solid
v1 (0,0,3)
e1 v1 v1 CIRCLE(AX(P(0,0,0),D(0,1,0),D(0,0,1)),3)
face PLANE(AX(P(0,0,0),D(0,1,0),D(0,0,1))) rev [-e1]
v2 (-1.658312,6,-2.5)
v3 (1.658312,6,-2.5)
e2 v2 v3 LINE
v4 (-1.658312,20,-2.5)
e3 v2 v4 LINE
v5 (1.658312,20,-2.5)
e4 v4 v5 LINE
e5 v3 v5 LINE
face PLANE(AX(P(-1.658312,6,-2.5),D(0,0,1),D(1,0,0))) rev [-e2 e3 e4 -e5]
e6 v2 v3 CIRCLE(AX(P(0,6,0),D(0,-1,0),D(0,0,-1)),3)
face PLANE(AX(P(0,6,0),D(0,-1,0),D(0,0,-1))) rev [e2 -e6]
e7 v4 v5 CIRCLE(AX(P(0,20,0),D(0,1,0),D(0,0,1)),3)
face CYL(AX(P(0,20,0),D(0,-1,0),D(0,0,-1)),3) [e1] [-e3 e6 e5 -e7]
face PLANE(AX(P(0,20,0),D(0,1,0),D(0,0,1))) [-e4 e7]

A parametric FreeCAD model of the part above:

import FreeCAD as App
import Part
import Sketcher
Q = App.Units.Quantity


def add_polygon(sketch, points):
    """Adds a closed chain of lines whose ends are joined by coincident constraints."""
    first, n = sketch.GeometryCount, len(points)
    for a, b in zip(points, points[1:] + points[:1]):
        sketch.addGeometry(Part.LineSegment(App.Vector(*a, 0), App.Vector(*b, 0)), False)
    for i in range(n):
        sketch.addConstraint(Sketcher.Constraint("Coincident", first + i, 2, first + (i + 1) % n, 1))

doc = App.newDocument("Part")
body = doc.addObject("PartDesign::Body", "Body")

# Sketch on XZ plane
sketch1 = doc.addObject("Sketcher::SketchObject", "Sketch")
body.addObject(sketch1)
sketch1.AttachmentSupport = (doc.XZ_Plane, [""])
sketch1.MapMode = "FlatFace"
sketch1.addGeometry(Part.Circle(App.Vector(0, 0, 0), App.Vector(0, 0, 1), 3), False)
sketch1.addConstraint([
    Sketcher.Constraint("Coincident", 0, 3, -1, 1),
    Sketcher.Constraint("Diameter", 0, Q("6 mm")),
])
pad1 = doc.addObject("PartDesign::Pad", "Pad")
body.addObject(pad1)
pad1.Profile = sketch1
pad1.Length = 20
pad1.Reversed = True

# Sketch on XZ plane
sketch2 = doc.addObject("Sketcher::SketchObject", "Sketch001")
body.addObject(sketch2)
sketch2.AttachmentSupport = (doc.XZ_Plane, [""])
sketch2.MapMode = "FlatFace"
sketch2.AttachmentOffset = App.Placement(App.Vector(0, 0, -20), App.Rotation())
add_polygon(sketch2, [(-1.7, -10.3), (-1.7, -2.5), (3, -2.5), (3, -10.3)])  # lines 0-3
sketch2.addConstraint([
    Sketcher.Constraint("Vertical", 0),
    Sketcher.Constraint("Horizontal", 1),
    Sketcher.Constraint("Vertical", 2),
    Sketcher.Constraint("Horizontal", 3),
    Sketcher.Constraint("DistanceX", -1, 1, 1, 2, Q("3 mm")),
    Sketcher.Constraint("DistanceY", 0, 2, -1, 1, Q("2.5 mm")),
    Sketcher.Constraint("DistanceY", 0, 1, 0, 2, Q("7.838812 mm")),
    Sketcher.Constraint("DistanceX", 1, 1, 1, 2, Q("4.658312 mm")),
])
pocket1 = doc.addObject("PartDesign::Pocket", "Pocket")
body.addObject(pocket1)
pocket1.Profile = sketch2
pocket1.Length = 14
pocket1.Reversed = True

doc.recompute()
